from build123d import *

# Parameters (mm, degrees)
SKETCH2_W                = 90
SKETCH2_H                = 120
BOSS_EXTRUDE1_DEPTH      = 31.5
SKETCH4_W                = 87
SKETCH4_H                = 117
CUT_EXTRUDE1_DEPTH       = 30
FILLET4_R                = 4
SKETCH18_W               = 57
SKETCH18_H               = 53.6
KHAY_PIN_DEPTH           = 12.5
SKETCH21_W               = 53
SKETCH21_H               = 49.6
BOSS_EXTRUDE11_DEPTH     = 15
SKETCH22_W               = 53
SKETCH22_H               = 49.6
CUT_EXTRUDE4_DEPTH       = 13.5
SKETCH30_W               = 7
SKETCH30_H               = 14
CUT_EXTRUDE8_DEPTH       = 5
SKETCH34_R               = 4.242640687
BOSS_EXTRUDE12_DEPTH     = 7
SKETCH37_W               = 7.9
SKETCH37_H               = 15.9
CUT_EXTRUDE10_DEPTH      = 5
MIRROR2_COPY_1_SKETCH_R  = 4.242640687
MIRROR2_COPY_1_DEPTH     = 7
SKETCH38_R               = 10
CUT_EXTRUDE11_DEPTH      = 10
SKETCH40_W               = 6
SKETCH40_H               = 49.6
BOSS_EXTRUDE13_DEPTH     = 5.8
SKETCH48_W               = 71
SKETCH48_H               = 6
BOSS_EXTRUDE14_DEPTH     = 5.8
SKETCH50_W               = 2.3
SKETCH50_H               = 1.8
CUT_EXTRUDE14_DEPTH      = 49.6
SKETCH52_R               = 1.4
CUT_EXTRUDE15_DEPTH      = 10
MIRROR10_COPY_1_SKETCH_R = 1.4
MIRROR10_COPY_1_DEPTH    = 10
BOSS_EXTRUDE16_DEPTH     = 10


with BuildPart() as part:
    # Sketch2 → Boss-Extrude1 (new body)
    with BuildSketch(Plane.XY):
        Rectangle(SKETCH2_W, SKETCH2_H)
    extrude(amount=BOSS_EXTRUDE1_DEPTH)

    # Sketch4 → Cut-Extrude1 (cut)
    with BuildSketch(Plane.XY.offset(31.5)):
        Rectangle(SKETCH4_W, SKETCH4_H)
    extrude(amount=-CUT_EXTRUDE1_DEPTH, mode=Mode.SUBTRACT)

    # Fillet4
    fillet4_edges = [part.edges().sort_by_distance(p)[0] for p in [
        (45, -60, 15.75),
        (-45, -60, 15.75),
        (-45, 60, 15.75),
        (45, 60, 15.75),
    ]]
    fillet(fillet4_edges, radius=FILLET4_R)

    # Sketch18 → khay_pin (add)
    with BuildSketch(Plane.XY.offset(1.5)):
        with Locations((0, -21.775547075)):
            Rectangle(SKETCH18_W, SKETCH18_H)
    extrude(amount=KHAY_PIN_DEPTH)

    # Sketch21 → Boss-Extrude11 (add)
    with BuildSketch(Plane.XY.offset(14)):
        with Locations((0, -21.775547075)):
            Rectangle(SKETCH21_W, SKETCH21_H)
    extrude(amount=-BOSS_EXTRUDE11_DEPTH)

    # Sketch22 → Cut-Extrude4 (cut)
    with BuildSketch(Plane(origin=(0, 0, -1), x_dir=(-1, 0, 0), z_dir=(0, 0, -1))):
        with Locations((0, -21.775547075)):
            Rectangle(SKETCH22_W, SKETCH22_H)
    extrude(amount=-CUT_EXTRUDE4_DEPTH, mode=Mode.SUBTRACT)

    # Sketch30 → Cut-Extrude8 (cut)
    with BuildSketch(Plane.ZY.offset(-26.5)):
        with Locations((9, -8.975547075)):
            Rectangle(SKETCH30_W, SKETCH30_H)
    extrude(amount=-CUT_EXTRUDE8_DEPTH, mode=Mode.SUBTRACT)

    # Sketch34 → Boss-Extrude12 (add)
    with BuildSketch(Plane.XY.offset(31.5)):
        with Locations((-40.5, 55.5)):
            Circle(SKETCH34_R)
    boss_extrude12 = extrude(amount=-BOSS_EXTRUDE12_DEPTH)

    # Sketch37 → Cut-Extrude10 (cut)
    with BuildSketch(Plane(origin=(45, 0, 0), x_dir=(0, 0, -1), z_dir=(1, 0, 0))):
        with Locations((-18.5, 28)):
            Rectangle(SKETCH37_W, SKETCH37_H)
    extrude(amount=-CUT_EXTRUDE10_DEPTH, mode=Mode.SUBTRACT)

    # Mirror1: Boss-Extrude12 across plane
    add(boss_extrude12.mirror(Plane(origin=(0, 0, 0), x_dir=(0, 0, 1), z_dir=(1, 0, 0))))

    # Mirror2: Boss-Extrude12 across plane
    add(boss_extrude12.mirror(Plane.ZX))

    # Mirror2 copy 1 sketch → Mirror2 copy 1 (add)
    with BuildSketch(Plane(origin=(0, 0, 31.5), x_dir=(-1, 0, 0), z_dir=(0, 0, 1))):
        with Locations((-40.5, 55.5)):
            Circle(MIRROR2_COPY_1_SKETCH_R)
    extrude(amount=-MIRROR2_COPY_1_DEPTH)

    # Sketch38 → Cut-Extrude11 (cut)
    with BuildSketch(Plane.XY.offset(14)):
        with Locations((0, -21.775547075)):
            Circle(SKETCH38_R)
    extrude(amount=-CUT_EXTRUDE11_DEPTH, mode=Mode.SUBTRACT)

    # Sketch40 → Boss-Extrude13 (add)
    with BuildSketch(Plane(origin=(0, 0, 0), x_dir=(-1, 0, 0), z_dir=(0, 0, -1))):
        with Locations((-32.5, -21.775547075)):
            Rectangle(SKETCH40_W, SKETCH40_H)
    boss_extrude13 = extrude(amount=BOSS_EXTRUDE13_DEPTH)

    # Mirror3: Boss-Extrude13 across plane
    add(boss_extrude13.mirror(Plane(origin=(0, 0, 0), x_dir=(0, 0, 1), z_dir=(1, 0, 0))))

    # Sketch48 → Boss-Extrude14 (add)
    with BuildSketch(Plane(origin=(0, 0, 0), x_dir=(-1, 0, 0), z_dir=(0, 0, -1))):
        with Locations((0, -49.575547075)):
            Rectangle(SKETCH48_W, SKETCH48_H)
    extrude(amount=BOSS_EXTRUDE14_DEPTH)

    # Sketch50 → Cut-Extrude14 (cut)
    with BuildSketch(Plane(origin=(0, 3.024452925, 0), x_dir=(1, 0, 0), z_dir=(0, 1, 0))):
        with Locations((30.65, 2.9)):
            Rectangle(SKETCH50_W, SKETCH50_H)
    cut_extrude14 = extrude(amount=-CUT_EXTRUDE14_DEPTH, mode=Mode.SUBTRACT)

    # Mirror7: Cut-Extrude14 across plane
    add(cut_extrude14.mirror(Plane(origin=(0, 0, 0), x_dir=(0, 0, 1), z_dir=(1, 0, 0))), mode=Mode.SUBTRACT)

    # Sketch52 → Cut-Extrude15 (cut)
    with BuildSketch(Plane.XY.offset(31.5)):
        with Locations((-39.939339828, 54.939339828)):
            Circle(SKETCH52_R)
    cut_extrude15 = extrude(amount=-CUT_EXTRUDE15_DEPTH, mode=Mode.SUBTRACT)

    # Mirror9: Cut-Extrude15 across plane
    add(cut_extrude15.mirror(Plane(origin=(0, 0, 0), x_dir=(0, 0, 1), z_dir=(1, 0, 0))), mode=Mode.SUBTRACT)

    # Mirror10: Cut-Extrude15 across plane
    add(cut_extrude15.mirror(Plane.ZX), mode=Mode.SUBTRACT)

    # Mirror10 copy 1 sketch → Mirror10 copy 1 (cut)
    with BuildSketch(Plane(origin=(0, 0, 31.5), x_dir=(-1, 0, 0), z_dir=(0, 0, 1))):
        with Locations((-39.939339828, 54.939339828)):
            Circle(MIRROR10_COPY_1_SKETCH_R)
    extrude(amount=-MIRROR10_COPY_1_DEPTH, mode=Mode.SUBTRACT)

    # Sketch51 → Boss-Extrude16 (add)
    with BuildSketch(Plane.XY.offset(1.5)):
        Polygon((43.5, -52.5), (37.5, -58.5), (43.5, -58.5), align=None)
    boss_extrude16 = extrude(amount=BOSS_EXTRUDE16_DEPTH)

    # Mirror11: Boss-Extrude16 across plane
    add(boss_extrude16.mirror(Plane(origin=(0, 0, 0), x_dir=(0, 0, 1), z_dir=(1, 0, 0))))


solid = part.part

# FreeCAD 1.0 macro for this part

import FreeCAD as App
import Part
import Sketcher
Q = App.Units.Quantity


def edges_at(feature, points):
    """Names of the edges that pass closest to the given points."""
    edges = feature.Shape.Edges
    near = lambda p: min(range(len(edges)), key=lambda i: edges[i].distToShape(Part.Vertex(*p))[0])
    return sorted({f"Edge{near(p) + 1}" for p in points})

doc = App.newDocument("Part")
body = doc.addObject("PartDesign::Body", "Body")

# Sketch on XY plane
sketch1 = body.newObject("Sketcher::SketchObject", "Sketch")
sketch1.AttachmentSupport = (doc.getObject("XY_Plane"), [""])
sketch1.MapMode = "FlatFace"
sketch1.addGeometry([
    Part.LineSegment(App.Vector(-45, 60, 0), App.Vector(-45, -60, 0)),
    Part.LineSegment(App.Vector(-45, -60, 0), App.Vector(45, -60, 0)),
    Part.LineSegment(App.Vector(45, -60, 0), App.Vector(45, 60, 0)),
    Part.LineSegment(App.Vector(45, 60, 0), App.Vector(-45, 60, 0)),
], False)
sketch1.addConstraint([
    Sketcher.Constraint("Coincident", 0, 2, 1, 1),
    Sketcher.Constraint("Coincident", 1, 2, 2, 1),
    Sketcher.Constraint("Coincident", 2, 2, 3, 1),
    Sketcher.Constraint("Coincident", 3, 2, 0, 1),
    Sketcher.Constraint("Vertical", 0),
    Sketcher.Constraint("Horizontal", 1),
    Sketcher.Constraint("Vertical", 2),
    Sketcher.Constraint("Horizontal", 3),
    Sketcher.Constraint("Symmetric", 0, 2, 2, 2, -1, 1),
    Sketcher.Constraint("DistanceX", 1, 1, 1, 2, Q("90 mm")),
    Sketcher.Constraint("DistanceY", 0, 2, 0, 1, Q("120 mm")),
])
pad1 = body.newObject("PartDesign::Pad", "Pad")
pad1.Profile = sketch1
pad1.Length = 31.5

# Sketch on XY plane
sketch2 = body.newObject("Sketcher::SketchObject", "Sketch001")
sketch2.AttachmentSupport = (doc.getObject("XY_Plane"), [""])
sketch2.MapMode = "FlatFace"
sketch2.AttachmentOffset = App.Placement(App.Vector(0, 0, 31.5), App.Rotation())
sketch2.addGeometry([
    Part.LineSegment(App.Vector(-44, 58, 0), App.Vector(-44, -58, 0)),
    Part.LineSegment(App.Vector(-44, -58, 0), App.Vector(44, -58, 0)),
    Part.LineSegment(App.Vector(44, -58, 0), App.Vector(44, 58, 0)),
    Part.LineSegment(App.Vector(44, 58, 0), App.Vector(-44, 58, 0)),
], False)
sketch2.addConstraint([
    Sketcher.Constraint("Coincident", 0, 2, 1, 1),
    Sketcher.Constraint("Coincident", 1, 2, 2, 1),
    Sketcher.Constraint("Coincident", 2, 2, 3, 1),
    Sketcher.Constraint("Coincident", 3, 2, 0, 1),
    Sketcher.Constraint("Vertical", 0),
    Sketcher.Constraint("Horizontal", 1),
    Sketcher.Constraint("Vertical", 2),
    Sketcher.Constraint("Horizontal", 3),
    Sketcher.Constraint("Symmetric", 0, 2, 2, 2, -1, 1),
    Sketcher.Constraint("DistanceX", 1, 1, 1, 2, Q("87 mm")),
    Sketcher.Constraint("DistanceY", 0, 2, 0, 1, Q("117 mm")),
])
pocket1 = body.newObject("PartDesign::Pocket", "Pocket")
pocket1.Profile = sketch2
pocket1.Length = 30
doc.recompute()

fillet = body.newObject("PartDesign::Fillet", "Fillet")
fillet.Base = (pocket1, edges_at(pocket1, [
    (45, -60, 15.75),
    (-45, -60, 15.75),
    (-45, 60, 15.75),
    (45, 60, 15.75),
]))
fillet.Radius = 4

# Sketch on XY plane
sketch3 = body.newObject("Sketcher::SketchObject", "Sketch002")
sketch3.AttachmentSupport = (doc.getObject("XY_Plane"), [""])
sketch3.MapMode = "FlatFace"
sketch3.AttachmentOffset = App.Placement(App.Vector(0, 0, 1.5), App.Rotation())
sketch3.addGeometry([
    Part.LineSegment(App.Vector(-28, 5, 0), App.Vector(-28, -49, 0)),
    Part.LineSegment(App.Vector(-28, -49, 0), App.Vector(28, -49, 0)),
    Part.LineSegment(App.Vector(28, -49, 0), App.Vector(28, 5, 0)),
    Part.LineSegment(App.Vector(28, 5, 0), App.Vector(-28, 5, 0)),
], False)
sketch3.addConstraint([
    Sketcher.Constraint("Coincident", 0, 2, 1, 1),
    Sketcher.Constraint("Coincident", 1, 2, 2, 1),
    Sketcher.Constraint("Coincident", 2, 2, 3, 1),
    Sketcher.Constraint("Coincident", 3, 2, 0, 1),
    Sketcher.Constraint("Vertical", 0),
    Sketcher.Constraint("Horizontal", 1),
    Sketcher.Constraint("Vertical", 2),
    Sketcher.Constraint("Horizontal", 3),
    Sketcher.Constraint("DistanceX", 1, 1, 1, 2, Q("57 mm")),
    Sketcher.Constraint("DistanceY", 0, 2, 0, 1, Q("53.6 mm")),
    Sketcher.Constraint("DistanceX", 0, 2, -1, 1, Q("28.5 mm")),
    Sketcher.Constraint("DistanceY", 0, 2, -1, 1, Q("48.575547 mm")),
])
pad2 = body.newObject("PartDesign::Pad", "Pad001")
pad2.Profile = sketch3
pad2.Length = 12.5

# Sketch on XY plane
sketch4 = body.newObject("Sketcher::SketchObject", "Sketch003")
sketch4.AttachmentSupport = (doc.getObject("XY_Plane"), [""])
sketch4.MapMode = "FlatFace"
sketch4.AttachmentOffset = App.Placement(App.Vector(0, 0, 14), App.Rotation())
sketch4.addGeometry([
    Part.LineSegment(App.Vector(-26, 3, 0), App.Vector(-26, -47, 0)),
    Part.LineSegment(App.Vector(-26, -47, 0), App.Vector(26, -47, 0)),
    Part.LineSegment(App.Vector(26, -47, 0), App.Vector(26, 3, 0)),
    Part.LineSegment(App.Vector(26, 3, 0), App.Vector(-26, 3, 0)),
], False)
sketch4.addConstraint([
    Sketcher.Constraint("Coincident", 0, 2, 1, 1),
    Sketcher.Constraint("Coincident", 1, 2, 2, 1),
    Sketcher.Constraint("Coincident", 2, 2, 3, 1),
    Sketcher.Constraint("Coincident", 3, 2, 0, 1),
    Sketcher.Constraint("Vertical", 0),
    Sketcher.Constraint("Horizontal", 1),
    Sketcher.Constraint("Vertical", 2),
    Sketcher.Constraint("Horizontal", 3),
    Sketcher.Constraint("DistanceX", 1, 1, 1, 2, Q("53 mm")),
    Sketcher.Constraint("DistanceY", 0, 2, 0, 1, Q("49.6 mm")),
    Sketcher.Constraint("DistanceX", 0, 2, -1, 1, Q("26.5 mm")),
    Sketcher.Constraint("DistanceY", 0, 2, -1, 1, Q("46.575547 mm")),
])
pad3 = body.newObject("PartDesign::Pad", "Pad002")
pad3.Profile = sketch4
pad3.Length = 15
pad3.Reversed = True

# Sketch on XY plane
sketch5 = body.newObject("Sketcher::SketchObject", "Sketch004")
sketch5.AttachmentSupport = (doc.getObject("XY_Plane"), [""])
sketch5.MapMode = "FlatFace"
sketch5.AttachmentOffset = App.Placement(App.Vector(0, 0, -1), App.Rotation())
sketch5.addGeometry([
    Part.LineSegment(App.Vector(26, 3, 0), App.Vector(26, -47, 0)),
    Part.LineSegment(App.Vector(26, -47, 0), App.Vector(-26, -47, 0)),
    Part.LineSegment(App.Vector(-26, -47, 0), App.Vector(-26, 3, 0)),
    Part.LineSegment(App.Vector(-26, 3, 0), App.Vector(26, 3, 0)),
], False)
sketch5.addConstraint([
    Sketcher.Constraint("Coincident", 0, 2, 1, 1),
    Sketcher.Constraint("Coincident", 1, 2, 2, 1),
    Sketcher.Constraint("Coincident", 2, 2, 3, 1),
    Sketcher.Constraint("Coincident", 3, 2, 0, 1),
    Sketcher.Constraint("Vertical", 0),
    Sketcher.Constraint("Horizontal", 1),
    Sketcher.Constraint("Vertical", 2),
    Sketcher.Constraint("Horizontal", 3),
    Sketcher.Constraint("DistanceX", 1, 2, 1, 1, Q("53 mm")),
    Sketcher.Constraint("DistanceY", 0, 2, 0, 1, Q("49.6 mm")),
    Sketcher.Constraint("DistanceX", -1, 1, 0, 2, Q("26.5 mm")),
    Sketcher.Constraint("DistanceY", 0, 2, -1, 1, Q("46.575547 mm")),
])
pocket2 = body.newObject("PartDesign::Pocket", "Pocket001")
pocket2.Profile = sketch5
pocket2.Length = 13.5
pocket2.Reversed = True

# Sketch on YZ plane
sketch6 = body.newObject("Sketcher::SketchObject", "Sketch005")
sketch6.AttachmentSupport = (doc.getObject("YZ_Plane"), [""])
sketch6.MapMode = "FlatFace"
sketch6.AttachmentOffset = App.Placement(App.Vector(0, 0, 26.5), App.Rotation())
sketch6.addGeometry([
    Part.LineSegment(App.Vector(-2, 6, 0), App.Vector(-16, 6, 0)),
    Part.LineSegment(App.Vector(-16, 6, 0), App.Vector(-16, 12, 0)),
    Part.LineSegment(App.Vector(-16, 12, 0), App.Vector(-2, 12, 0)),
    Part.LineSegment(App.Vector(-2, 12, 0), App.Vector(-2, 6, 0)),
], False)
sketch6.addConstraint([
    Sketcher.Constraint("Coincident", 0, 2, 1, 1),
    Sketcher.Constraint("Coincident", 1, 2, 2, 1),
    Sketcher.Constraint("Coincident", 2, 2, 3, 1),
    Sketcher.Constraint("Coincident", 3, 2, 0, 1),
    Sketcher.Constraint("Horizontal", 0),
    Sketcher.Constraint("Vertical", 1),
    Sketcher.Constraint("Horizontal", 2),
    Sketcher.Constraint("Vertical", 3),
    Sketcher.Constraint("DistanceX", 0, 2, 0, 1, Q("14 mm")),
    Sketcher.Constraint("DistanceY", 1, 1, 1, 2, Q("7 mm")),
    Sketcher.Constraint("DistanceY", -1, 1, 0, 2, Q("5.5 mm")),
    Sketcher.Constraint("DistanceX", 0, 2, -1, 1, Q("15.975547 mm")),
])
pocket3 = body.newObject("PartDesign::Pocket", "Pocket002")
pocket3.Profile = sketch6
pocket3.Length = 5
pocket3.Reversed = True

# Sketch on XY plane
sketch7 = body.newObject("Sketcher::SketchObject", "Sketch006")
sketch7.AttachmentSupport = (doc.getObject("XY_Plane"), [""])
sketch7.MapMode = "FlatFace"
sketch7.AttachmentOffset = App.Placement(App.Vector(0, 0, 31.5), App.Rotation())
sketch7.addGeometry(Part.Circle(App.Vector(-40.5, 55.5, 0), App.Vector(0, 0, 1), 4.2), False)
sketch7.addConstraint([
    Sketcher.Constraint("DistanceX", 0, 3, -1, 1, Q("40.5 mm")),
    Sketcher.Constraint("DistanceY", -1, 1, 0, 3, Q("55.5 mm")),
    Sketcher.Constraint("Diameter", 0, Q("8.485281 mm")),
])
pad4 = body.newObject("PartDesign::Pad", "Pad003")
pad4.Profile = sketch7
pad4.Length = 7
pad4.Reversed = True

# Sketch on YZ plane
sketch8 = body.newObject("Sketcher::SketchObject", "Sketch007")
sketch8.AttachmentSupport = (doc.getObject("YZ_Plane"), [""])
sketch8.MapMode = "FlatFace"
sketch8.AttachmentOffset = App.Placement(App.Vector(0, 0, 45), App.Rotation())
sketch8.addGeometry([
    Part.LineSegment(App.Vector(36, 22, 0), App.Vector(20, 22, 0)),
    Part.LineSegment(App.Vector(20, 22, 0), App.Vector(20, 15, 0)),
    Part.LineSegment(App.Vector(20, 15, 0), App.Vector(36, 15, 0)),
    Part.LineSegment(App.Vector(36, 15, 0), App.Vector(36, 22, 0)),
], False)
sketch8.addConstraint([
    Sketcher.Constraint("Coincident", 0, 2, 1, 1),
    Sketcher.Constraint("Coincident", 1, 2, 2, 1),
    Sketcher.Constraint("Coincident", 2, 2, 3, 1),
    Sketcher.Constraint("Coincident", 3, 2, 0, 1),
    Sketcher.Constraint("Horizontal", 0),
    Sketcher.Constraint("Vertical", 1),
    Sketcher.Constraint("Horizontal", 2),
    Sketcher.Constraint("Vertical", 3),
    Sketcher.Constraint("DistanceX", 0, 2, 0, 1, Q("15.9 mm")),
    Sketcher.Constraint("DistanceY", 1, 2, 1, 1, Q("7.9 mm")),
    Sketcher.Constraint("DistanceX", -1, 1, 0, 2, Q("20.05 mm")),
    Sketcher.Constraint("DistanceY", -1, 1, 0, 2, Q("22.45 mm")),
])
pocket4 = body.newObject("PartDesign::Pocket", "Pocket003")
pocket4.Profile = sketch8
pocket4.Length = 5
doc.recompute()

mirrored = body.newObject("PartDesign::Mirrored", "Mirrored")
mirrored.Originals = [pad4]
mirrored.MirrorPlane = (doc.getObject("YZ_Plane"), [""])
body.Tip = mirrored
doc.recompute()

mirrored2 = body.newObject("PartDesign::Mirrored", "Mirrored001")
mirrored2.Originals = [pad4]
mirrored2.MirrorPlane = (doc.getObject("XZ_Plane"), [""])
body.Tip = mirrored2

# Sketch on XY plane
sketch9 = body.newObject("Sketcher::SketchObject", "Sketch008")
sketch9.AttachmentSupport = (doc.getObject("XY_Plane"), [""])
sketch9.MapMode = "FlatFace"
sketch9.AttachmentOffset = App.Placement(App.Vector(0, 0, 31.5), App.Rotation())
sketch9.addGeometry(Part.Circle(App.Vector(40.5, -55.5, 0), App.Vector(0, 0, 1), 4.2), False)
sketch9.addConstraint([
    Sketcher.Constraint("DistanceX", -1, 1, 0, 3, Q("40.5 mm")),
    Sketcher.Constraint("DistanceY", 0, 3, -1, 1, Q("55.5 mm")),
    Sketcher.Constraint("Diameter", 0, Q("8.485281 mm")),
])
pad5 = body.newObject("PartDesign::Pad", "Pad004")
pad5.Profile = sketch9
pad5.Length = 7
pad5.Reversed = True

# Sketch on XY plane
sketch10 = body.newObject("Sketcher::SketchObject", "Sketch009")
sketch10.AttachmentSupport = (doc.getObject("XY_Plane"), [""])
sketch10.MapMode = "FlatFace"
sketch10.AttachmentOffset = App.Placement(App.Vector(0, 0, 14), App.Rotation())
sketch10.addGeometry(Part.Circle(App.Vector(0, -22, 0), App.Vector(0, 0, 1), 10), False)
sketch10.addConstraint([
    Sketcher.Constraint("PointOnObject", 0, 3, -2),
    Sketcher.Constraint("Diameter", 0, Q("20 mm")),
    Sketcher.Constraint("DistanceY", 0, 3, -1, 1, Q("21.775547 mm")),
])
pocket5 = body.newObject("PartDesign::Pocket", "Pocket004")
pocket5.Profile = sketch10
pocket5.Length = 10

# Sketch on XY plane
sketch11 = body.newObject("Sketcher::SketchObject", "Sketch010")
sketch11.AttachmentSupport = (doc.getObject("XY_Plane"), [""])
sketch11.MapMode = "FlatFace"
sketch11.addGeometry([
    Part.LineSegment(App.Vector(36, 3, 0), App.Vector(36, -47, 0)),
    Part.LineSegment(App.Vector(36, -47, 0), App.Vector(30, -47, 0)),
    Part.LineSegment(App.Vector(30, -47, 0), App.Vector(30, 3, 0)),
    Part.LineSegment(App.Vector(30, 3, 0), App.Vector(36, 3, 0)),
], False)
sketch11.addConstraint([
    Sketcher.Constraint("Coincident", 0, 2, 1, 1),
    Sketcher.Constraint("Coincident", 1, 2, 2, 1),
    Sketcher.Constraint("Coincident", 2, 2, 3, 1),
    Sketcher.Constraint("Coincident", 3, 2, 0, 1),
    Sketcher.Constraint("Vertical", 0),
    Sketcher.Constraint("Horizontal", 1),
    Sketcher.Constraint("Vertical", 2),
    Sketcher.Constraint("Horizontal", 3),
    Sketcher.Constraint("DistanceX", 1, 2, 1, 1, Q("6 mm")),
    Sketcher.Constraint("DistanceY", 0, 2, 0, 1, Q("49.6 mm")),
    Sketcher.Constraint("DistanceX", -1, 1, 0, 2, Q("35.5 mm")),
    Sketcher.Constraint("DistanceY", 0, 2, -1, 1, Q("46.575547 mm")),
])
pad6 = body.newObject("PartDesign::Pad", "Pad005")
pad6.Profile = sketch11
pad6.Length = 5.8
pad6.Reversed = True
doc.recompute()

mirrored3 = body.newObject("PartDesign::Mirrored", "Mirrored002")
mirrored3.Originals = [pad6]
mirrored3.MirrorPlane = (doc.getObject("YZ_Plane"), [""])
body.Tip = mirrored3

# Sketch on XY plane
sketch12 = body.newObject("Sketcher::SketchObject", "Sketch011")
sketch12.AttachmentSupport = (doc.getObject("XY_Plane"), [""])
sketch12.MapMode = "FlatFace"
sketch12.addGeometry([
    Part.LineSegment(App.Vector(36, -47, 0), App.Vector(36, -53, 0)),
    Part.LineSegment(App.Vector(36, -53, 0), App.Vector(-36, -53, 0)),
    Part.LineSegment(App.Vector(-36, -53, 0), App.Vector(-36, -47, 0)),
    Part.LineSegment(App.Vector(-36, -47, 0), App.Vector(36, -47, 0)),
], False)
sketch12.addConstraint([
    Sketcher.Constraint("Coincident", 0, 2, 1, 1),
    Sketcher.Constraint("Coincident", 1, 2, 2, 1),
    Sketcher.Constraint("Coincident", 2, 2, 3, 1),
    Sketcher.Constraint("Coincident", 3, 2, 0, 1),
    Sketcher.Constraint("Vertical", 0),
    Sketcher.Constraint("Horizontal", 1),
    Sketcher.Constraint("Vertical", 2),
    Sketcher.Constraint("Horizontal", 3),
    Sketcher.Constraint("DistanceX", 1, 2, 1, 1, Q("71 mm")),
    Sketcher.Constraint("DistanceY", 0, 2, 0, 1, Q("6 mm")),
    Sketcher.Constraint("DistanceX", -1, 1, 0, 2, Q("35.5 mm")),
    Sketcher.Constraint("DistanceY", 0, 2, -1, 1, Q("52.575547 mm")),
])
pad7 = body.newObject("PartDesign::Pad", "Pad006")
pad7.Profile = sketch12
pad7.Length = 5.8
pad7.Reversed = True

# Sketch on XZ plane
sketch13 = body.newObject("Sketcher::SketchObject", "Sketch012")
sketch13.AttachmentSupport = (doc.getObject("XZ_Plane"), [""])
sketch13.MapMode = "FlatFace"
sketch13.AttachmentOffset = App.Placement(App.Vector(0, 0, -3.024453), App.Rotation())
sketch13.addGeometry([
    Part.LineSegment(App.Vector(29.5, -3.8, 0), App.Vector(29.5, -2, 0)),
    Part.LineSegment(App.Vector(29.5, -2, 0), App.Vector(31.8, -2, 0)),
    Part.LineSegment(App.Vector(31.8, -2, 0), App.Vector(31.8, -3.8, 0)),
    Part.LineSegment(App.Vector(31.8, -3.8, 0), App.Vector(29.5, -3.8, 0)),
], False)
sketch13.addConstraint([
    Sketcher.Constraint("Coincident", 0, 2, 1, 1),
    Sketcher.Constraint("Coincident", 1, 2, 2, 1),
    Sketcher.Constraint("Coincident", 2, 2, 3, 1),
    Sketcher.Constraint("Coincident", 3, 2, 0, 1),
    Sketcher.Constraint("Vertical", 0),
    Sketcher.Constraint("Horizontal", 1),
    Sketcher.Constraint("Vertical", 2),
    Sketcher.Constraint("Horizontal", 3),
    Sketcher.Constraint("DistanceX", 1, 1, 1, 2, Q("2.3 mm")),
    Sketcher.Constraint("DistanceY", 0, 1, 0, 2, Q("1.8 mm")),
    Sketcher.Constraint("DistanceY", 0, 2, -1, 1, Q("2 mm")),
    Sketcher.Constraint("DistanceX", -1, 1, 0, 2, Q("29.5 mm")),
])
pocket6 = body.newObject("PartDesign::Pocket", "Pocket005")
pocket6.Profile = sketch13
pocket6.Length = 49.6
pocket6.Reversed = True
doc.recompute()

mirrored4 = body.newObject("PartDesign::Mirrored", "Mirrored003")
mirrored4.Originals = [pocket6]
mirrored4.MirrorPlane = (doc.getObject("YZ_Plane"), [""])
body.Tip = mirrored4

# Sketch on XY plane
sketch14 = body.newObject("Sketcher::SketchObject", "Sketch013")
sketch14.AttachmentSupport = (doc.getObject("XY_Plane"), [""])
sketch14.MapMode = "FlatFace"
sketch14.AttachmentOffset = App.Placement(App.Vector(0, 0, 31.5), App.Rotation())
sketch14.addGeometry(Part.Circle(App.Vector(-39.9, 54.9, 0), App.Vector(0, 0, 1), 1.4), False)
sketch14.addConstraint([
    Sketcher.Constraint("Diameter", 0, Q("2.8 mm")),
    Sketcher.Constraint("DistanceX", 0, 3, -1, 1, Q("39.93934 mm")),
    Sketcher.Constraint("DistanceY", -1, 1, 0, 3, Q("54.93934 mm")),
])
pocket7 = body.newObject("PartDesign::Pocket", "Pocket006")
pocket7.Profile = sketch14
pocket7.Length = 10
doc.recompute()

mirrored5 = body.newObject("PartDesign::Mirrored", "Mirrored004")
mirrored5.Originals = [pocket7]
mirrored5.MirrorPlane = (doc.getObject("YZ_Plane"), [""])
body.Tip = mirrored5
doc.recompute()

mirrored6 = body.newObject("PartDesign::Mirrored", "Mirrored005")
mirrored6.Originals = [pocket7]
mirrored6.MirrorPlane = (doc.getObject("XZ_Plane"), [""])
body.Tip = mirrored6

# Sketch on XY plane
sketch15 = body.newObject("Sketcher::SketchObject", "Sketch014")
sketch15.AttachmentSupport = (doc.getObject("XY_Plane"), [""])
sketch15.MapMode = "FlatFace"
sketch15.AttachmentOffset = App.Placement(App.Vector(0, 0, 31.5), App.Rotation())
sketch15.addGeometry(Part.Circle(App.Vector(39.9, -54.9, 0), App.Vector(0, 0, 1), 1.4), False)
sketch15.addConstraint([
    Sketcher.Constraint("Diameter", 0, Q("2.8 mm")),
    Sketcher.Constraint("DistanceX", -1, 1, 0, 3, Q("39.93934 mm")),
    Sketcher.Constraint("DistanceY", 0, 3, -1, 1, Q("54.93934 mm")),
])
pocket8 = body.newObject("PartDesign::Pocket", "Pocket007")
pocket8.Profile = sketch15
pocket8.Length = 10

# Sketch on XY plane
sketch16 = body.newObject("Sketcher::SketchObject", "Sketch015")
sketch16.AttachmentSupport = (doc.getObject("XY_Plane"), [""])
sketch16.MapMode = "FlatFace"
sketch16.AttachmentOffset = App.Placement(App.Vector(0, 0, 1.5), App.Rotation())
sketch16.addGeometry([
    Part.LineSegment(App.Vector(44, -52, 0), App.Vector(38, -58, 0)),
    Part.LineSegment(App.Vector(38, -58, 0), App.Vector(44, -58, 0)),
    Part.LineSegment(App.Vector(44, -58, 0), App.Vector(44, -52, 0)),
], False)
sketch16.addConstraint([
    Sketcher.Constraint("Coincident", 0, 2, 1, 1),
    Sketcher.Constraint("Coincident", 1, 2, 2, 1),
    Sketcher.Constraint("Coincident", 2, 2, 0, 1),
    Sketcher.Constraint("Horizontal", 1),
    Sketcher.Constraint("Vertical", 2),
    Sketcher.Constraint("Equal", 1, 2),
    Sketcher.Constraint("DistanceX", 1, 1, 1, 2, Q("6 mm")),
    Sketcher.Constraint("DistanceX", -1, 1, 0, 2, Q("37.5 mm")),
    Sketcher.Constraint("DistanceY", 0, 2, -1, 1, Q("58.5 mm")),
])
pad8 = body.newObject("PartDesign::Pad", "Pad007")
pad8.Profile = sketch16
pad8.Length = 10
doc.recompute()

mirrored7 = body.newObject("PartDesign::Mirrored", "Mirrored006")
mirrored7.Originals = [pad8]
mirrored7.MirrorPlane = (doc.getObject("YZ_Plane"), [""])
body.Tip = mirrored7

doc.recompute()
